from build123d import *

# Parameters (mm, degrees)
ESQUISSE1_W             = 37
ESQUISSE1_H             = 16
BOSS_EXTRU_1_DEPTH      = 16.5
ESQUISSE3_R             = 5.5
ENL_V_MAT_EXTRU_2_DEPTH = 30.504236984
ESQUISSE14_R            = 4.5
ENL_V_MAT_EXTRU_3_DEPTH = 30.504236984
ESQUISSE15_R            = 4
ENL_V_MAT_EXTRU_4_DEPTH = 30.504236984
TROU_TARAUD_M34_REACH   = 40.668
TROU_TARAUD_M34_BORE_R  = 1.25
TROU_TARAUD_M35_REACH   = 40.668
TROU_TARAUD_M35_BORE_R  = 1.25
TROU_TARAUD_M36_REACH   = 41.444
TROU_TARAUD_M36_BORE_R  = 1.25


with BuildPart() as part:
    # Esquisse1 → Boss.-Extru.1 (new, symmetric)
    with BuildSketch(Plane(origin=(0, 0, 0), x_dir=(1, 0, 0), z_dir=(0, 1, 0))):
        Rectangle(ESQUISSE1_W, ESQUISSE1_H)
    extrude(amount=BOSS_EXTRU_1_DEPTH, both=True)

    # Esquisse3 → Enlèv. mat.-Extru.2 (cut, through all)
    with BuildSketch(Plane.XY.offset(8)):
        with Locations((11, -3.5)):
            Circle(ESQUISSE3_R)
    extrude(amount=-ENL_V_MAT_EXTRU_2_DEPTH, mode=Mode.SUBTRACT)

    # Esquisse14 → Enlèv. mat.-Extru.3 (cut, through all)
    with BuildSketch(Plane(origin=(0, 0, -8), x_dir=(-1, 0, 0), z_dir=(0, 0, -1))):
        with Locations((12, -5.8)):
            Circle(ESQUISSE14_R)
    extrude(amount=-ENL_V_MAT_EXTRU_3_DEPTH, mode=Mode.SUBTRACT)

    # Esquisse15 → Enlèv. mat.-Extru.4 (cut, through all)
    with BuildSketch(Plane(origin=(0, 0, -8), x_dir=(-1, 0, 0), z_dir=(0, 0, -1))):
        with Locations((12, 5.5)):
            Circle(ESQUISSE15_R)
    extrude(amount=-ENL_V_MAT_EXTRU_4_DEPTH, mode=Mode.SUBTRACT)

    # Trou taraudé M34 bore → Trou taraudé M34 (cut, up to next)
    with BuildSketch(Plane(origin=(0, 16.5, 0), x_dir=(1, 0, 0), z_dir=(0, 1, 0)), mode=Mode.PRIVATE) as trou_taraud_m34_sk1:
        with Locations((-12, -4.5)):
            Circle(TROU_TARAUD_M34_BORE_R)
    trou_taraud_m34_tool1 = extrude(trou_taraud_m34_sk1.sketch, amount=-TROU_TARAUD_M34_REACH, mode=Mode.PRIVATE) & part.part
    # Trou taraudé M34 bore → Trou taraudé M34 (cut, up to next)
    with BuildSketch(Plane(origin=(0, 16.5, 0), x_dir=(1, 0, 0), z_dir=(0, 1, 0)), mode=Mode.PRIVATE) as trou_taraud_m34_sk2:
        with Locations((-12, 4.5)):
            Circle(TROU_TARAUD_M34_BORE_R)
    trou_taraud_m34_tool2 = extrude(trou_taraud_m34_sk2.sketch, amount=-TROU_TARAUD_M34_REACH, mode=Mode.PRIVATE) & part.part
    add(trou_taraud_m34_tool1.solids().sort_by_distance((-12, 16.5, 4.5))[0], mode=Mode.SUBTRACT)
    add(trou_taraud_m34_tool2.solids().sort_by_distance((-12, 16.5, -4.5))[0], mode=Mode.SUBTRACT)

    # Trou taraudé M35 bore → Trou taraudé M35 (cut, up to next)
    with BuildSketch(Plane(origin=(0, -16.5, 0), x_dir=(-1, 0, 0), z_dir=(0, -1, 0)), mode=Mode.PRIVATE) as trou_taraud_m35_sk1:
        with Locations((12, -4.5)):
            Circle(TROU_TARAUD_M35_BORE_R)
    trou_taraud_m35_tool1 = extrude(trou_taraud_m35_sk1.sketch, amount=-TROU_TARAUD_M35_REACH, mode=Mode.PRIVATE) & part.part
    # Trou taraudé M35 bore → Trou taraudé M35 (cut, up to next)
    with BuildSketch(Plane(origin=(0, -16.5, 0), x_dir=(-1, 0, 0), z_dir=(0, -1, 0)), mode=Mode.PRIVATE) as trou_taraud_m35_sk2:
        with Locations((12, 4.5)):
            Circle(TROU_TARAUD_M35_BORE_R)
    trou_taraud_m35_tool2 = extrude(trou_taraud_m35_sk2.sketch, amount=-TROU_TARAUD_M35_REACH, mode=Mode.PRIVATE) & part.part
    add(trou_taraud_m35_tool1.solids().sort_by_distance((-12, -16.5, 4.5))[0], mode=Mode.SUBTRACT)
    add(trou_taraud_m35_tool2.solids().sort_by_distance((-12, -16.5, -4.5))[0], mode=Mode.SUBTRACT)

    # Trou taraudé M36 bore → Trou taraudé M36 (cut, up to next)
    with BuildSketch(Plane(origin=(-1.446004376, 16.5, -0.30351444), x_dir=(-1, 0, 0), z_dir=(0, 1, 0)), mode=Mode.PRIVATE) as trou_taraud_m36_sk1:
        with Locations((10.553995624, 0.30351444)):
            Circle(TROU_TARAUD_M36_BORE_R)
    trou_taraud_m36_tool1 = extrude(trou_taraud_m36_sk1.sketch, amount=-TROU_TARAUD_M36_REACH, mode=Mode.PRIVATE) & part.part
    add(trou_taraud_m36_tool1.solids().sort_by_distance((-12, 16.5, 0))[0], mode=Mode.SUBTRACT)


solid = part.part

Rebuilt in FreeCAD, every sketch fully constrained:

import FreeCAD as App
import Part
import Sketcher
from FreeCAD import Vector
Q = App.Units.Quantity

doc = App.newDocument("Part")
body = doc.addObject("PartDesign::Body", "Body")

# Sketch on XZ plane
sketch1 = body.newObject("Sketcher::SketchObject", "Sketch")
sketch1.AttachmentSupport = (doc.getObject("XZ_Plane"), [""])
sketch1.MapMode = "FlatFace"
sketch1.addGeometry(Part.LineSegment(Vector(-18, -8, 0), Vector(-18, 8, 0)), False)
sketch1.addGeometry(Part.LineSegment(Vector(-18, 8, 0), Vector(18, 8, 0)), False)
sketch1.addGeometry(Part.LineSegment(Vector(18, 8, 0), Vector(18, -8, 0)), False)
sketch1.addGeometry(Part.LineSegment(Vector(18, -8, 0), Vector(-18, -8, 0)), False)
sketch1.addConstraint(Sketcher.Constraint("Coincident", 0, 2, 1, 1))
sketch1.addConstraint(Sketcher.Constraint("Coincident", 1, 2, 2, 1))
sketch1.addConstraint(Sketcher.Constraint("Coincident", 2, 2, 3, 1))
sketch1.addConstraint(Sketcher.Constraint("Coincident", 3, 2, 0, 1))
sketch1.addConstraint(Sketcher.Constraint("Vertical", 0))
sketch1.addConstraint(Sketcher.Constraint("Horizontal", 1))
sketch1.addConstraint(Sketcher.Constraint("Vertical", 2))
sketch1.addConstraint(Sketcher.Constraint("Horizontal", 3))
sketch1.addConstraint(Sketcher.Constraint("Symmetric", 0, 2, 2, 2, -1, 1))
sketch1.addConstraint(Sketcher.Constraint("DistanceX", 1, 1, 1, 2, Q("37 mm")))
sketch1.addConstraint(Sketcher.Constraint("DistanceY", 0, 1, 0, 2, Q("16 mm")))
pad1 = body.newObject("PartDesign::Pad", "Pad")
pad1.Profile = sketch1
pad1.Length = 33
pad1.Midplane = True

# Sketch on XY plane
sketch2 = body.newObject("Sketcher::SketchObject", "Sketch001")
sketch2.AttachmentSupport = (doc.getObject("XY_Plane"), [""])
sketch2.MapMode = "FlatFace"
sketch2.AttachmentOffset = App.Placement(Vector(0, 0, 8), App.Rotation())
sketch2.addGeometry(Part.Circle(Vector(11, -4, 0), Vector(0, 0, 1), 6), False)
sketch2.addConstraint(Sketcher.Constraint("Diameter", 0, Q("11 mm")))
sketch2.addConstraint(Sketcher.Constraint("DistanceX", -1, 1, 0, 3, Q("11 mm")))
sketch2.addConstraint(Sketcher.Constraint("DistanceY", 0, 3, -1, 1, Q("3.5 mm")))
pocket1 = body.newObject("PartDesign::Pocket", "Pocket")
pocket1.Profile = sketch2
pocket1.Type = "ThroughAll"

# Sketch on XY plane
sketch3 = body.newObject("Sketcher::SketchObject", "Sketch002")
sketch3.AttachmentSupport = (doc.getObject("XY_Plane"), [""])
sketch3.MapMode = "FlatFace"
sketch3.AttachmentOffset = App.Placement(Vector(0, 0, -8), App.Rotation())
sketch3.addGeometry(Part.Circle(Vector(-12, -5.8, 0), Vector(0, 0, 1), 4.5), False)
sketch3.addConstraint(Sketcher.Constraint("Diameter", 0, Q("9 mm")))
sketch3.addConstraint(Sketcher.Constraint("DistanceX", 0, 3, -1, 1, Q("12 mm")))
sketch3.addConstraint(Sketcher.Constraint("DistanceY", 0, 3, -1, 1, Q("5.8 mm")))
pocket2 = body.newObject("PartDesign::Pocket", "Pocket001")
pocket2.Profile = sketch3
pocket2.Type = "ThroughAll"
pocket2.Reversed = True

# Sketch on XY plane
sketch4 = body.newObject("Sketcher::SketchObject", "Sketch003")
sketch4.AttachmentSupport = (doc.getObject("XY_Plane"), [""])
sketch4.MapMode = "FlatFace"
sketch4.AttachmentOffset = App.Placement(Vector(0, 0, -8), App.Rotation())
sketch4.addGeometry(Part.Circle(Vector(-12, 5.5, 0), Vector(0, 0, 1), 4), False)
sketch4.addConstraint(Sketcher.Constraint("Diameter", 0, Q("8 mm")))
sketch4.addConstraint(Sketcher.Constraint("DistanceX", 0, 3, -1, 1, Q("12 mm")))
sketch4.addConstraint(Sketcher.Constraint("DistanceY", -1, 1, 0, 3, Q("5.5 mm")))
pocket3 = body.newObject("PartDesign::Pocket", "Pocket002")
pocket3.Profile = sketch4
pocket3.Type = "ThroughAll"
pocket3.Reversed = True

# Sketch on XZ plane
sketch5 = body.newObject("Sketcher::SketchObject", "Sketch004")
sketch5.AttachmentSupport = (doc.getObject("XZ_Plane"), [""])
sketch5.MapMode = "FlatFace"
sketch5.AttachmentOffset = App.Placement(Vector(0, 0, -16.5), App.Rotation())
sketch5.addGeometry(Part.Circle(Vector(-12, 4.5, 0), Vector(0, 0, 1), 1.2), False)
sketch5.addConstraint(Sketcher.Constraint("Diameter", 0, Q("2.5 mm")))
sketch5.addConstraint(Sketcher.Constraint("DistanceX", 0, 3, -1, 1, Q("12 mm")))
sketch5.addConstraint(Sketcher.Constraint("DistanceY", -1, 1, 0, 3, Q("4.5 mm")))
pocket4 = body.newObject("PartDesign::Pocket", "Pocket003")
pocket4.Profile = sketch5
pocket4.Type = "UpToFirst"
pocket4.Reversed = True

# Sketch on XZ plane
sketch6 = body.newObject("Sketcher::SketchObject", "Sketch005")
sketch6.AttachmentSupport = (doc.getObject("XZ_Plane"), [""])
sketch6.MapMode = "FlatFace"
sketch6.AttachmentOffset = App.Placement(Vector(0, 0, -16.5), App.Rotation())
sketch6.addGeometry(Part.Circle(Vector(-12, -4.5, 0), Vector(0, 0, 1), 1.2), False)
sketch6.addConstraint(Sketcher.Constraint("Diameter", 0, Q("2.5 mm")))
sketch6.addConstraint(Sketcher.Constraint("DistanceX", 0, 3, -1, 1, Q("12 mm")))
sketch6.addConstraint(Sketcher.Constraint("DistanceY", 0, 3, -1, 1, Q("4.5 mm")))
pocket5 = body.newObject("PartDesign::Pocket", "Pocket004")
pocket5.Profile = sketch6
pocket5.Type = "UpToFirst"
pocket5.Reversed = True

# Sketch on XZ plane
sketch7 = body.newObject("Sketcher::SketchObject", "Sketch006")
sketch7.AttachmentSupport = (doc.getObject("XZ_Plane"), [""])
sketch7.MapMode = "FlatFace"
sketch7.AttachmentOffset = App.Placement(Vector(0, 0, 16.5), App.Rotation())
sketch7.addGeometry(Part.Circle(Vector(-12, 4.5, 0), Vector(0, 0, 1), 1.2), False)
sketch7.addConstraint(Sketcher.Constraint("Diameter", 0, Q("2.5 mm")))
sketch7.addConstraint(Sketcher.Constraint("DistanceX", 0, 3, -1, 1, Q("12 mm")))
sketch7.addConstraint(Sketcher.Constraint("DistanceY", -1, 1, 0, 3, Q("4.5 mm")))
pocket6 = body.newObject("PartDesign::Pocket", "Pocket005")
pocket6.Profile = sketch7
pocket6.Type = "UpToFirst"

# Sketch on XZ plane
sketch8 = body.newObject("Sketcher::SketchObject", "Sketch007")
sketch8.AttachmentSupport = (doc.getObject("XZ_Plane"), [""])
sketch8.MapMode = "FlatFace"
sketch8.AttachmentOffset = App.Placement(Vector(0, 0, 16.5), App.Rotation())
sketch8.addGeometry(Part.Circle(Vector(-12, -4.5, 0), Vector(0, 0, 1), 1.2), False)
sketch8.addConstraint(Sketcher.Constraint("Diameter", 0, Q("2.5 mm")))
sketch8.addConstraint(Sketcher.Constraint("DistanceX", 0, 3, -1, 1, Q("12 mm")))
sketch8.addConstraint(Sketcher.Constraint("DistanceY", 0, 3, -1, 1, Q("4.5 mm")))
pocket7 = body.newObject("PartDesign::Pocket", "Pocket006")
pocket7.Profile = sketch8
pocket7.Length = 6.377096

# Sketch on XZ plane
sketch9 = body.newObject("Sketcher::SketchObject", "Sketch008")
sketch9.AttachmentSupport = (doc.getObject("XZ_Plane"), [""])
sketch9.MapMode = "FlatFace"
sketch9.AttachmentOffset = App.Placement(Vector(0, 0, -16.5), App.Rotation())
sketch9.addGeometry(Part.Circle(Vector(-12, 0, 0), Vector(0, 0, 1), 1.2), False)
sketch9.addConstraint(Sketcher.Constraint("PointOnObject", 0, 3, -1))
sketch9.addConstraint(Sketcher.Constraint("Diameter", 0, Q("2.5 mm")))
sketch9.addConstraint(Sketcher.Constraint("DistanceX", 0, 3, -1, 1, Q("12 mm")))
pocket8 = body.newObject("PartDesign::Pocket", "Pocket007")
pocket8.Profile = sketch9
pocket8.Type = "UpToFirst"
pocket8.Reversed = True

doc.recompute()
